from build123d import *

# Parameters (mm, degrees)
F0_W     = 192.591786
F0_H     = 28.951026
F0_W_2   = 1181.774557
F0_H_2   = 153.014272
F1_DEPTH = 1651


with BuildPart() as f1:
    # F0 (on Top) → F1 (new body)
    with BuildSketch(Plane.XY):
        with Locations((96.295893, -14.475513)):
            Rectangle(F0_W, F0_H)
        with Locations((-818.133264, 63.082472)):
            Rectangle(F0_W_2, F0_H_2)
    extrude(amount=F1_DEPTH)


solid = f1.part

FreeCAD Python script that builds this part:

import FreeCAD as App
import Part
import Sketcher
Q = App.Units.Quantity


def add_polygon(sketch, points):
    """Adds a closed chain of lines whose ends are joined by coincident constraints."""
    first, n = sketch.GeometryCount, len(points)
    for a, b in zip(points, points[1:] + points[:1]):
        sketch.addGeometry(Part.LineSegment(App.Vector(*a, 0), App.Vector(*b, 0)), False)
    for i in range(n):
        sketch.addConstraint(Sketcher.Constraint("Coincident", first + i, 2, first + (i + 1) % n, 1))

doc = App.newDocument("Part")
body = doc.addObject("PartDesign::Body", "Body")
body.AllowCompound = True

sketch1 = body.newObject("Sketcher::SketchObject", "Sketch")
sketch1.AttachmentSupport = (doc.getObject("XY_Plane"), [""])
sketch1.MapMode = "FlatFace"
add_polygon(sketch1, [(0, 0), (0, -29), (193, -29), (193, 0)])
add_polygon(sketch1, [(-1409, 140), (-1409, -13), (-227, -13), (-227, 140)])
sketch1.addConstraint(Sketcher.Constraint("Vertical", 0))
sketch1.addConstraint(Sketcher.Constraint("Horizontal", 1))
sketch1.addConstraint(Sketcher.Constraint("Vertical", 2))
sketch1.addConstraint(Sketcher.Constraint("Horizontal", 3))
sketch1.addConstraint(Sketcher.Constraint("Vertical", 4))
sketch1.addConstraint(Sketcher.Constraint("Horizontal", 5))
sketch1.addConstraint(Sketcher.Constraint("Vertical", 6))
sketch1.addConstraint(Sketcher.Constraint("Horizontal", 7))
sketch1.addConstraint(Sketcher.Constraint("Coincident", 3, 2, -1, 1))
sketch1.addConstraint(Sketcher.Constraint("DistanceY", 4, 2, 4, 1, Q("153.014272 mm")))
sketch1.addConstraint(Sketcher.Constraint("DistanceX", 1, 1, 1, 2, Q("192.591786 mm")))
sketch1.addConstraint(Sketcher.Constraint("DistanceX", 5, 1, 5, 2, Q("1181.774557 mm")))
sketch1.addConstraint(Sketcher.Constraint("DistanceY", 0, 2, 0, 1, Q("28.951026 mm")))
sketch1.addConstraint(Sketcher.Constraint("DistanceY", -1, 1, 6, 2, Q("139.589608 mm")))
sketch1.addConstraint(Sketcher.Constraint("DistanceX", 4, 2, 2, 2, Q("1601.612328 mm")))
pad1 = body.newObject("PartDesign::Pad", "Pad")
pad1.Profile = sketch1
pad1.Length = Q("65 in")

doc.recompute()
